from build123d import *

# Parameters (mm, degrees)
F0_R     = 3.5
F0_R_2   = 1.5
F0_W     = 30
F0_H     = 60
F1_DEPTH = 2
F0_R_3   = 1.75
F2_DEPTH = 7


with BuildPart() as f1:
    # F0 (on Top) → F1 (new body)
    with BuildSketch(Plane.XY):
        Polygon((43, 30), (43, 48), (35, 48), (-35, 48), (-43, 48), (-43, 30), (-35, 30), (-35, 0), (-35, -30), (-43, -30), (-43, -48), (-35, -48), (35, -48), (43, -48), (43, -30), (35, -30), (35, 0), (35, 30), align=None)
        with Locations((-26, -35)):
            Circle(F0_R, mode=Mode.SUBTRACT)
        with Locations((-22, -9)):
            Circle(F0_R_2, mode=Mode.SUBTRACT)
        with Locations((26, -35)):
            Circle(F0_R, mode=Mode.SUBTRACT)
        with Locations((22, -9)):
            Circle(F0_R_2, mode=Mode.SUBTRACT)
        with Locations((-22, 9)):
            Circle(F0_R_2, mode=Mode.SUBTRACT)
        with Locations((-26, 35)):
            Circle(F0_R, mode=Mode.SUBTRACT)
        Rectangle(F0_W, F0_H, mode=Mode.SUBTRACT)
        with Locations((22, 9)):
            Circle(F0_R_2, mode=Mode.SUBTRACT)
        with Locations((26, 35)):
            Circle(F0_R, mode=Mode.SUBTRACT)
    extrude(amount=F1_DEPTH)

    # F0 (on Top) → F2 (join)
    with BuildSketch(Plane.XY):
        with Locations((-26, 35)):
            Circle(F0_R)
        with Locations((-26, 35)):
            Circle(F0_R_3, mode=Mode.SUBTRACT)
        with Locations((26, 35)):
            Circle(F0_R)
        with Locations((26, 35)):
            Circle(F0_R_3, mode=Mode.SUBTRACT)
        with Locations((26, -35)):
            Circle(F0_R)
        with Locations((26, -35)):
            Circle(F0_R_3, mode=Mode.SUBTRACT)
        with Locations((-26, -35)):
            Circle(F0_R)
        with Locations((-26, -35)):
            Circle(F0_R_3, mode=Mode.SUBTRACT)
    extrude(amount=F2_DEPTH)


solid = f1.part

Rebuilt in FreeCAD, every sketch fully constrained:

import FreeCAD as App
import Part
import Sketcher

V = App.Vector


def add_polygon(sketch, points):
    """Adds a closed chain of lines whose ends are joined by coincident constraints."""
    first, n = sketch.GeometryCount, len(points)
    for a, b in zip(points, points[1:] + points[:1]):
        sketch.addGeometry(Part.LineSegment(App.Vector(*a, 0), App.Vector(*b, 0)), False)
    for i in range(n):
        sketch.addConstraint(Sketcher.Constraint("Coincident", first + i, 2, first + (i + 1) % n, 1))

doc = App.newDocument("Part")
body = doc.addObject("PartDesign::Body", "Body")

sketch1 = body.newObject("Sketcher::SketchObject", "Sketch")
sketch1.AttachmentSupport = (doc.getObject("XY_Plane"), [""])
sketch1.MapMode = "FlatFace"
add_polygon(sketch1, [(43, 30), (43, 48), (-43, 48), (-43, 30), (-35, 30), (-35, -30), (-43, -30), (-43, -48), (43, -48), (43, -30), (35, -30), (35, 30)])
sketch1.addGeometry(Part.Circle(V(-26, -35, 0), V(0, 0, 1), 3.5), False)
sketch1.addGeometry(Part.Circle(V(-22, -9, 0), V(0, 0, 1), 1.5), False)
sketch1.addGeometry(Part.Circle(V(26, -35, 0), V(0, 0, 1), 3.5), False)
sketch1.addGeometry(Part.Circle(V(22, -9, 0), V(0, 0, 1), 1.5), False)
sketch1.addGeometry(Part.Circle(V(-22, 9, 0), V(0, 0, 1), 1.5), False)
sketch1.addGeometry(Part.Circle(V(-26, 35, 0), V(0, 0, 1), 3.5), False)
add_polygon(sketch1, [(15, -30), (-15, -30), (-15, 30), (15, 30)])
sketch1.addGeometry(Part.Circle(V(22, 9, 0), V(0, 0, 1), 1.5), False)
sketch1.addGeometry(Part.Circle(V(26, 35, 0), V(0, 0, 1), 3.5), False)
sketch1.addConstraint([
    Sketcher.Constraint("Vertical", 0),
    Sketcher.Constraint("Horizontal", 1),
    Sketcher.Constraint("Vertical", 2),
    Sketcher.Constraint("Horizontal", 3),
    Sketcher.Constraint("Vertical", 4),
    Sketcher.Constraint("Horizontal", 5),
    Sketcher.Constraint("Vertical", 6),
    Sketcher.Constraint("Horizontal", 7),
    Sketcher.Constraint("Vertical", 8),
    Sketcher.Constraint("Horizontal", 9),
    Sketcher.Constraint("Vertical", 10),
    Sketcher.Constraint("Horizontal", 11),
    Sketcher.Constraint("Horizontal", 18),
    Sketcher.Constraint("Vertical", 19),
    Sketcher.Constraint("Horizontal", 20),
    Sketcher.Constraint("Vertical", 21),
    Sketcher.Constraint("Equal", 12, 14),
    Sketcher.Constraint("Equal", 13, 15),
    Sketcher.Constraint("Equal", 15, 16),
    Sketcher.Constraint("Equal", 14, 17),
    Sketcher.Constraint("Equal", 16, 22),
    Sketcher.Constraint("Equal", 17, 23),
    Sketcher.Constraint("Symmetric", 15, 3, 16, 3, -1, 1),
    Sketcher.Constraint("Symmetric", 14, 3, 17, 3, -1, 1),
    Sketcher.Constraint("Symmetric", 13, 3, 22, 3, -1, 1),
    Sketcher.Constraint("Symmetric", 12, 3, 23, 3, -1, 1),
    Sketcher.Constraint("Symmetric", 0, 2, 6, 2, -1, 1),
    Sketcher.Constraint("Symmetric", 2, 2, 8, 2, -1, 1),
    Sketcher.Constraint("Symmetric", 4, 2, 10, 2, -1, 1),
    Sketcher.Constraint("Symmetric", 18, 2, 20, 2, -1, 1),
    Sketcher.Constraint("Symmetric", 12, 3, 14, 3, -2),
    Sketcher.Constraint("Symmetric", 13, 3, 15, 3, -2),
    Sketcher.Constraint("Symmetric", 5, 2, 8, 2, -2),
    Sketcher.Constraint("Horizontal", 9, 2, 18, 2),
    Sketcher.Constraint("Diameter", 12, 7.0),
    Sketcher.Constraint("Diameter", 13, 3.0),
    Sketcher.Constraint("DistanceX", 1, 2, 1, 1, 86.0),
    Sketcher.Constraint("DistanceX", 3, 1, 3, 2, 8.0),
    Sketcher.Constraint("DistanceX", 18, 2, 18, 1, 30.0),
    Sketcher.Constraint("DistanceY", 0, 1, 0, 2, 18.0),
    Sketcher.Constraint("DistanceY", 4, 2, 4, 1, 60.0),
    Sketcher.Constraint("DistanceX", 12, 3, -1, 1, 26.0),
    Sketcher.Constraint("DistanceY", 12, 3, -1, 1, 35.0),
    Sketcher.Constraint("DistanceX", 13, 3, -1, 1, 22.0),
    Sketcher.Constraint("DistanceY", 13, 3, -1, 1, 9.0),
])
pad1 = body.newObject("PartDesign::Pad", "Pad")
pad1.Profile = sketch1
pad1.Length = 2

sketch2 = body.newObject("Sketcher::SketchObject", "Sketch001")
sketch2.AttachmentSupport = (doc.getObject("XY_Plane"), [""])
sketch2.MapMode = "FlatFace"
sketch2.addGeometry([
    Part.Circle(V(-26, 35, 0), V(0, 0, 1), 3.5),
    Part.Circle(V(-26, 35, 0), V(0, 0, 1), 1.8),
    Part.Circle(V(26, 35, 0), V(0, 0, 1), 3.5),
    Part.Circle(V(26, 35, 0), V(0, 0, 1), 1.8),
    Part.Circle(V(26, -35, 0), V(0, 0, 1), 3.5),
    Part.Circle(V(26, -35, 0), V(0, 0, 1), 1.8),
    Part.Circle(V(-26, -35, 0), V(0, 0, 1), 3.5),
    Part.Circle(V(-26, -35, 0), V(0, 0, 1), 1.8),
], False)
sketch2.addConstraint([
    Sketcher.Constraint("Coincident", 1, 3, 0, 3),
    Sketcher.Constraint("Coincident", 3, 3, 2, 3),
    Sketcher.Constraint("Coincident", 5, 3, 4, 3),
    Sketcher.Constraint("Coincident", 7, 3, 6, 3),
    Sketcher.Constraint("Equal", 0, 2),
    Sketcher.Constraint("Equal", 1, 3),
    Sketcher.Constraint("Equal", 2, 4),
    Sketcher.Constraint("Equal", 3, 5),
    Sketcher.Constraint("Equal", 4, 6),
    Sketcher.Constraint("Equal", 5, 7),
    Sketcher.Constraint("Symmetric", 0, 3, 4, 3, -1, 1),
    Sketcher.Constraint("Symmetric", 2, 3, 6, 3, -1, 1),
    Sketcher.Constraint("Symmetric", 0, 3, 2, 3, -2),
    Sketcher.Constraint("Diameter", 0, 7.0),
    Sketcher.Constraint("Diameter", 1, 3.5),
    Sketcher.Constraint("DistanceX", 0, 3, -1, 1, 26.0),
    Sketcher.Constraint("DistanceY", -1, 1, 0, 3, 35.0),
])
pad2 = body.newObject("PartDesign::Pad", "Pad001")
pad2.Profile = sketch2
pad2.Length = 7

doc.recompute()
